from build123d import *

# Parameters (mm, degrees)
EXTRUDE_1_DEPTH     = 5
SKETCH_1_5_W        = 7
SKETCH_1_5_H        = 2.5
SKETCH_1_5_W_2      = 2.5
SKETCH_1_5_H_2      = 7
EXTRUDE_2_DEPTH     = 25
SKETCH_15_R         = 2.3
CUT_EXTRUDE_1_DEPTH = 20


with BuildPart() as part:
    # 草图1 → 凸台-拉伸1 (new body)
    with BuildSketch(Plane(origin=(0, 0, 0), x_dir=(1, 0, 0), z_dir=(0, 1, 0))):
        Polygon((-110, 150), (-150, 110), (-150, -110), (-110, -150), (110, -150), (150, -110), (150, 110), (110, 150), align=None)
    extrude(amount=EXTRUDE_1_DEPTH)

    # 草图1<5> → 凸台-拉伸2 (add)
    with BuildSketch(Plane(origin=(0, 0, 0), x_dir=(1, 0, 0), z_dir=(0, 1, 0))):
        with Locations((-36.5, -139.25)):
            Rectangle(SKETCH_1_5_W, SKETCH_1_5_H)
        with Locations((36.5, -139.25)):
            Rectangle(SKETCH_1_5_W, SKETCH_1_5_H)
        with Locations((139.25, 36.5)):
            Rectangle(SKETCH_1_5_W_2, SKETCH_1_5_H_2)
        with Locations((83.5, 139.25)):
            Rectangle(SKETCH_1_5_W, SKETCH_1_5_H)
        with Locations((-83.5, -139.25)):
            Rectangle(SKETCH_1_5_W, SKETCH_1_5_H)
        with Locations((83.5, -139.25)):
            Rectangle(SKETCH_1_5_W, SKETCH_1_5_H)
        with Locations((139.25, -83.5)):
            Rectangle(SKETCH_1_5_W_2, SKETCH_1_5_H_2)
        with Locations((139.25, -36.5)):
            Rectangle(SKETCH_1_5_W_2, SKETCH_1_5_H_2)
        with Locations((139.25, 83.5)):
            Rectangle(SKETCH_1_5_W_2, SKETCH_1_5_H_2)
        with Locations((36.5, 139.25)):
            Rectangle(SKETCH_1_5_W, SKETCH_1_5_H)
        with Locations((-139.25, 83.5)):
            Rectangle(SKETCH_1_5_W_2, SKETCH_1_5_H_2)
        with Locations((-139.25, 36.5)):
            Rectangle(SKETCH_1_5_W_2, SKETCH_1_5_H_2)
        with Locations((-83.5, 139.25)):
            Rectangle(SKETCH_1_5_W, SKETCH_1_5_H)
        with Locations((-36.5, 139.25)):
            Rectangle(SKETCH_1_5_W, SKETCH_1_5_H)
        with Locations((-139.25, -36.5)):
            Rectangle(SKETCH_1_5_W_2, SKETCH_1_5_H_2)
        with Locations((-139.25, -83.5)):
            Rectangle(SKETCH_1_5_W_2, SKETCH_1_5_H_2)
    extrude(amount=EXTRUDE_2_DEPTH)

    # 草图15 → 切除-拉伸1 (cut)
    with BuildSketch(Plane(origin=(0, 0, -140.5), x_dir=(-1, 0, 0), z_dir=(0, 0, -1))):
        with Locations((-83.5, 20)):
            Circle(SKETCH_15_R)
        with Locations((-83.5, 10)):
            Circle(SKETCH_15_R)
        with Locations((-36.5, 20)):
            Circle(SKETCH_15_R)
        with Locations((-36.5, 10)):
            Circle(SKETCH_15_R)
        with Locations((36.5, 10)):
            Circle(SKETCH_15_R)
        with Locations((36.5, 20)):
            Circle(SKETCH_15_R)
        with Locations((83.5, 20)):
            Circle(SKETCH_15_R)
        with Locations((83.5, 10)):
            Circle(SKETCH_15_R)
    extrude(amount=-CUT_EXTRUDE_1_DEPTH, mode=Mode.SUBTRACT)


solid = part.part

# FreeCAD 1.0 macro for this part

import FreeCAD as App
import Part
import Sketcher
from FreeCAD import Vector
Q = App.Units.Quantity

doc = App.newDocument("Part")
body = doc.addObject("PartDesign::Body", "Body")

# Sketch on XZ plane
sketch1 = body.newObject("Sketcher::SketchObject", "Sketch")
sketch1.AttachmentSupport = (doc.getObject("XZ_Plane"), [""])
sketch1.MapMode = "FlatFace"
sketch1.addGeometry(Part.LineSegment(Vector(-110, -150, 0), Vector(-150, -110, 0)), False)
sketch1.addGeometry(Part.LineSegment(Vector(-150, -110, 0), Vector(-150, 110, 0)), False)
sketch1.addGeometry(Part.LineSegment(Vector(-150, 110, 0), Vector(-110, 150, 0)), False)
sketch1.addGeometry(Part.LineSegment(Vector(-110, 150, 0), Vector(110, 150, 0)), False)
sketch1.addGeometry(Part.LineSegment(Vector(110, 150, 0), Vector(150, 110, 0)), False)
sketch1.addGeometry(Part.LineSegment(Vector(150, 110, 0), Vector(150, -110, 0)), False)
sketch1.addGeometry(Part.LineSegment(Vector(150, -110, 0), Vector(110, -150, 0)), False)
sketch1.addGeometry(Part.LineSegment(Vector(110, -150, 0), Vector(-110, -150, 0)), False)
sketch1.addConstraint(Sketcher.Constraint("Coincident", 0, 2, 1, 1))
sketch1.addConstraint(Sketcher.Constraint("Coincident", 1, 2, 2, 1))
sketch1.addConstraint(Sketcher.Constraint("Coincident", 2, 2, 3, 1))
sketch1.addConstraint(Sketcher.Constraint("Coincident", 3, 2, 4, 1))
sketch1.addConstraint(Sketcher.Constraint("Coincident", 4, 2, 5, 1))
sketch1.addConstraint(Sketcher.Constraint("Coincident", 5, 2, 6, 1))
sketch1.addConstraint(Sketcher.Constraint("Coincident", 6, 2, 7, 1))
sketch1.addConstraint(Sketcher.Constraint("Coincident", 7, 2, 0, 1))
sketch1.addConstraint(Sketcher.Constraint("Vertical", 1))
sketch1.addConstraint(Sketcher.Constraint("Horizontal", 3))
sketch1.addConstraint(Sketcher.Constraint("Vertical", 5))
sketch1.addConstraint(Sketcher.Constraint("Horizontal", 7))
sketch1.addConstraint(Sketcher.Constraint("Symmetric", 0, 2, 4, 2, -1, 1))
sketch1.addConstraint(Sketcher.Constraint("Symmetric", 2, 2, 6, 2, -1, 1))
sketch1.addConstraint(Sketcher.Constraint("Perpendicular", 0, 2))
sketch1.addConstraint(Sketcher.Constraint("Perpendicular", 2, 4))
sketch1.addConstraint(Sketcher.Constraint("Perpendicular", 4, 6))
sketch1.addConstraint(Sketcher.Constraint("Horizontal", 1, 2, 4, 2))
sketch1.addConstraint(Sketcher.Constraint("Vertical", 3, 2, 6, 2))
sketch1.addConstraint(Sketcher.Constraint("Equal", 7, 1))
sketch1.addConstraint(Sketcher.Constraint("DistanceX", 3, 1, 3, 2, Q("220 mm")))
sketch1.addConstraint(Sketcher.Constraint("DistanceX", 0, 2, -1, 1, Q("150 mm")))
pad1 = body.newObject("PartDesign::Pad", "Pad")
pad1.Profile = sketch1
pad1.Length = 5
pad1.Reversed = True

# Sketch on XZ plane
sketch2 = body.newObject("Sketcher::SketchObject", "Sketch001")
sketch2.AttachmentSupport = (doc.getObject("XZ_Plane"), [""])
sketch2.MapMode = "FlatFace"
sketch2.addGeometry(Part.LineSegment(Vector(-40, 138, 0), Vector(-40, 140.5, 0)), False)
sketch2.addGeometry(Part.LineSegment(Vector(-40, 140.5, 0), Vector(-33, 140.5, 0)), False)
sketch2.addGeometry(Part.LineSegment(Vector(-33, 140.5, 0), Vector(-33, 138, 0)), False)
sketch2.addGeometry(Part.LineSegment(Vector(-33, 138, 0), Vector(-40, 138, 0)), False)
sketch2.addGeometry(Part.LineSegment(Vector(33, 138, 0), Vector(33, 140.5, 0)), False)
sketch2.addGeometry(Part.LineSegment(Vector(33, 140.5, 0), Vector(40, 140.5, 0)), False)
sketch2.addGeometry(Part.LineSegment(Vector(40, 140.5, 0), Vector(40, 138, 0)), False)
sketch2.addGeometry(Part.LineSegment(Vector(40, 138, 0), Vector(33, 138, 0)), False)
sketch2.addGeometry(Part.LineSegment(Vector(138, -40, 0), Vector(138, -33, 0)), False)
sketch2.addGeometry(Part.LineSegment(Vector(138, -33, 0), Vector(140.5, -33, 0)), False)
sketch2.addGeometry(Part.LineSegment(Vector(140.5, -33, 0), Vector(140.5, -40, 0)), False)
sketch2.addGeometry(Part.LineSegment(Vector(140.5, -40, 0), Vector(138, -40, 0)), False)
sketch2.addGeometry(Part.LineSegment(Vector(80, -140.5, 0), Vector(80, -138, 0)), False)
sketch2.addGeometry(Part.LineSegment(Vector(80, -138, 0), Vector(87, -138, 0)), False)
sketch2.addGeometry(Part.LineSegment(Vector(87, -138, 0), Vector(87, -140.5, 0)), False)
sketch2.addGeometry(Part.LineSegment(Vector(87, -140.5, 0), Vector(80, -140.5, 0)), False)
sketch2.addGeometry(Part.LineSegment(Vector(-87, 138, 0), Vector(-87, 140.5, 0)), False)
sketch2.addGeometry(Part.LineSegment(Vector(-87, 140.5, 0), Vector(-80, 140.5, 0)), False)
sketch2.addGeometry(Part.LineSegment(Vector(-80, 140.5, 0), Vector(-80, 138, 0)), False)
sketch2.addGeometry(Part.LineSegment(Vector(-80, 138, 0), Vector(-87, 138, 0)), False)
sketch2.addGeometry(Part.LineSegment(Vector(80, 138, 0), Vector(80, 140.5, 0)), False)
sketch2.addGeometry(Part.LineSegment(Vector(80, 140.5, 0), Vector(87, 140.5, 0)), False)
sketch2.addGeometry(Part.LineSegment(Vector(87, 140.5, 0), Vector(87, 138, 0)), False)
sketch2.addGeometry(Part.LineSegment(Vector(87, 138, 0), Vector(80, 138, 0)), False)
sketch2.addGeometry(Part.LineSegment(Vector(138, 80, 0), Vector(138, 87, 0)), False)
sketch2.addGeometry(Part.LineSegment(Vector(138, 87, 0), Vector(140.5, 87, 0)), False)
sketch2.addGeometry(Part.LineSegment(Vector(140.5, 87, 0), Vector(140.5, 80, 0)), False)
sketch2.addGeometry(Part.LineSegment(Vector(140.5, 80, 0), Vector(138, 80, 0)), False)
sketch2.addGeometry(Part.LineSegment(Vector(138, 33, 0), Vector(138, 40, 0)), False)
sketch2.addGeometry(Part.LineSegment(Vector(138, 40, 0), Vector(140.5, 40, 0)), False)
sketch2.addGeometry(Part.LineSegment(Vector(140.5, 40, 0), Vector(140.5, 33, 0)), False)
sketch2.addGeometry(Part.LineSegment(Vector(140.5, 33, 0), Vector(138, 33, 0)), False)
sketch2.addGeometry(Part.LineSegment(Vector(138, -87, 0), Vector(138, -80, 0)), False)
sketch2.addGeometry(Part.LineSegment(Vector(138, -80, 0), Vector(140.5, -80, 0)), False)
sketch2.addGeometry(Part.LineSegment(Vector(140.5, -80, 0), Vector(140.5, -87, 0)), False)
sketch2.addGeometry(Part.LineSegment(Vector(140.5, -87, 0), Vector(138, -87, 0)), False)
sketch2.addGeometry(Part.LineSegment(Vector(33, -140.5, 0), Vector(33, -138, 0)), False)
sketch2.addGeometry(Part.LineSegment(Vector(33, -138, 0), Vector(40, -138, 0)), False)
sketch2.addGeometry(Part.LineSegment(Vector(40, -138, 0), Vector(40, -140.5, 0)), False)
sketch2.addGeometry(Part.LineSegment(Vector(40, -140.5, 0), Vector(33, -140.5, 0)), False)
sketch2.addGeometry(Part.LineSegment(Vector(-140.5, -87, 0), Vector(-140.5, -80, 0)), False)
sketch2.addGeometry(Part.LineSegment(Vector(-140.5, -80, 0), Vector(-138, -80, 0)), False)
sketch2.addGeometry(Part.LineSegment(Vector(-138, -80, 0), Vector(-138, -87, 0)), False)
sketch2.addGeometry(Part.LineSegment(Vector(-138, -87, 0), Vector(-140.5, -87, 0)), False)
sketch2.addGeometry(Part.LineSegment(Vector(-140.5, -40, 0), Vector(-140.5, -33, 0)), False)
sketch2.addGeometry(Part.LineSegment(Vector(-140.5, -33, 0), Vector(-138, -33, 0)), False)
sketch2.addGeometry(Part.LineSegment(Vector(-138, -33, 0), Vector(-138, -40, 0)), False)
sketch2.addGeometry(Part.LineSegment(Vector(-138, -40, 0), Vector(-140.5, -40, 0)), False)
sketch2.addGeometry(Part.LineSegment(Vector(-87, -140.5, 0), Vector(-87, -138, 0)), False)
sketch2.addGeometry(Part.LineSegment(Vector(-87, -138, 0), Vector(-80, -138, 0)), False)
sketch2.addGeometry(Part.LineSegment(Vector(-80, -138, 0), Vector(-80, -140.5, 0)), False)
sketch2.addGeometry(Part.LineSegment(Vector(-80, -140.5, 0), Vector(-87, -140.5, 0)), False)
sketch2.addGeometry(Part.LineSegment(Vector(-40, -140.5, 0), Vector(-40, -138, 0)), False)
sketch2.addGeometry(Part.LineSegment(Vector(-40, -138, 0), Vector(-33, -138, 0)), False)
sketch2.addGeometry(Part.LineSegment(Vector(-33, -138, 0), Vector(-33, -140.5, 0)), False)
sketch2.addGeometry(Part.LineSegment(Vector(-33, -140.5, 0), Vector(-40, -140.5, 0)), False)
sketch2.addGeometry(Part.LineSegment(Vector(-140.5, 33, 0), Vector(-140.5, 40, 0)), False)
sketch2.addGeometry(Part.LineSegment(Vector(-140.5, 40, 0), Vector(-138, 40, 0)), False)
sketch2.addGeometry(Part.LineSegment(Vector(-138, 40, 0), Vector(-138, 33, 0)), False)
sketch2.addGeometry(Part.LineSegment(Vector(-138, 33, 0), Vector(-140.5, 33, 0)), False)
sketch2.addGeometry(Part.LineSegment(Vector(-140.5, 80, 0), Vector(-140.5, 87, 0)), False)
sketch2.addGeometry(Part.LineSegment(Vector(-140.5, 87, 0), Vector(-138, 87, 0)), False)
sketch2.addGeometry(Part.LineSegment(Vector(-138, 87, 0), Vector(-138, 80, 0)), False)
sketch2.addGeometry(Part.LineSegment(Vector(-138, 80, 0), Vector(-140.5, 80, 0)), False)
sketch2.addConstraint(Sketcher.Constraint("Coincident", 0, 2, 1, 1))
sketch2.addConstraint(Sketcher.Constraint("Coincident", 1, 2, 2, 1))
sketch2.addConstraint(Sketcher.Constraint("Coincident", 2, 2, 3, 1))
sketch2.addConstraint(Sketcher.Constraint("Coincident", 3, 2, 0, 1))
sketch2.addConstraint(Sketcher.Constraint("Coincident", 4, 2, 5, 1))
sketch2.addConstraint(Sketcher.Constraint("Coincident", 5, 2, 6, 1))
sketch2.addConstraint(Sketcher.Constraint("Coincident", 6, 2, 7, 1))
sketch2.addConstraint(Sketcher.Constraint("Coincident", 7, 2, 4, 1))
sketch2.addConstraint(Sketcher.Constraint("Coincident", 8, 2, 9, 1))
sketch2.addConstraint(Sketcher.Constraint("Coincident", 9, 2, 10, 1))
sketch2.addConstraint(Sketcher.Constraint("Coincident", 10, 2, 11, 1))
sketch2.addConstraint(Sketcher.Constraint("Coincident", 11, 2, 8, 1))
sketch2.addConstraint(Sketcher.Constraint("Coincident", 12, 2, 13, 1))
sketch2.addConstraint(Sketcher.Constraint("Coincident", 13, 2, 14, 1))
sketch2.addConstraint(Sketcher.Constraint("Coincident", 14, 2, 15, 1))
sketch2.addConstraint(Sketcher.Constraint("Coincident", 15, 2, 12, 1))
sketch2.addConstraint(Sketcher.Constraint("Coincident", 16, 2, 17, 1))
sketch2.addConstraint(Sketcher.Constraint("Coincident", 17, 2, 18, 1))
sketch2.addConstraint(Sketcher.Constraint("Coincident", 18, 2, 19, 1))
sketch2.addConstraint(Sketcher.Constraint("Coincident", 19, 2, 16, 1))
sketch2.addConstraint(Sketcher.Constraint("Coincident", 20, 2, 21, 1))
sketch2.addConstraint(Sketcher.Constraint("Coincident", 21, 2, 22, 1))
sketch2.addConstraint(Sketcher.Constraint("Coincident", 22, 2, 23, 1))
sketch2.addConstraint(Sketcher.Constraint("Coincident", 23, 2, 20, 1))
sketch2.addConstraint(Sketcher.Constraint("Coincident", 24, 2, 25, 1))
sketch2.addConstraint(Sketcher.Constraint("Coincident", 25, 2, 26, 1))
sketch2.addConstraint(Sketcher.Constraint("Coincident", 26, 2, 27, 1))
sketch2.addConstraint(Sketcher.Constraint("Coincident", 27, 2, 24, 1))
sketch2.addConstraint(Sketcher.Constraint("Coincident", 28, 2, 29, 1))
sketch2.addConstraint(Sketcher.Constraint("Coincident", 29, 2, 30, 1))
sketch2.addConstraint(Sketcher.Constraint("Coincident", 30, 2, 31, 1))
sketch2.addConstraint(Sketcher.Constraint("Coincident", 31, 2, 28, 1))
sketch2.addConstraint(Sketcher.Constraint("Coincident", 32, 2, 33, 1))
sketch2.addConstraint(Sketcher.Constraint("Coincident", 33, 2, 34, 1))
sketch2.addConstraint(Sketcher.Constraint("Coincident", 34, 2, 35, 1))
sketch2.addConstraint(Sketcher.Constraint("Coincident", 35, 2, 32, 1))
sketch2.addConstraint(Sketcher.Constraint("Coincident", 36, 2, 37, 1))
sketch2.addConstraint(Sketcher.Constraint("Coincident", 37, 2, 38, 1))
sketch2.addConstraint(Sketcher.Constraint("Coincident", 38, 2, 39, 1))
sketch2.addConstraint(Sketcher.Constraint("Coincident", 39, 2, 36, 1))
sketch2.addConstraint(Sketcher.Constraint("Coincident", 40, 2, 41, 1))
sketch2.addConstraint(Sketcher.Constraint("Coincident", 41, 2, 42, 1))
sketch2.addConstraint(Sketcher.Constraint("Coincident", 42, 2, 43, 1))
sketch2.addConstraint(Sketcher.Constraint("Coincident", 43, 2, 40, 1))
sketch2.addConstraint(Sketcher.Constraint("Coincident", 44, 2, 45, 1))
sketch2.addConstraint(Sketcher.Constraint("Coincident", 45, 2, 46, 1))
sketch2.addConstraint(Sketcher.Constraint("Coincident", 46, 2, 47, 1))
sketch2.addConstraint(Sketcher.Constraint("Coincident", 47, 2, 44, 1))
sketch2.addConstraint(Sketcher.Constraint("Coincident", 48, 2, 49, 1))
sketch2.addConstraint(Sketcher.Constraint("Coincident", 49, 2, 50, 1))
sketch2.addConstraint(Sketcher.Constraint("Coincident", 50, 2, 51, 1))
sketch2.addConstraint(Sketcher.Constraint("Coincident", 51, 2, 48, 1))
sketch2.addConstraint(Sketcher.Constraint("Coincident", 52, 2, 53, 1))
sketch2.addConstraint(Sketcher.Constraint("Coincident", 53, 2, 54, 1))
sketch2.addConstraint(Sketcher.Constraint("Coincident", 54, 2, 55, 1))
sketch2.addConstraint(Sketcher.Constraint("Coincident", 55, 2, 52, 1))
sketch2.addConstraint(Sketcher.Constraint("Coincident", 56, 2, 57, 1))
sketch2.addConstraint(Sketcher.Constraint("Coincident", 57, 2, 58, 1))
sketch2.addConstraint(Sketcher.Constraint("Coincident", 58, 2, 59, 1))
sketch2.addConstraint(Sketcher.Constraint("Coincident", 59, 2, 56, 1))
sketch2.addConstraint(Sketcher.Constraint("Coincident", 60, 2, 61, 1))
sketch2.addConstraint(Sketcher.Constraint("Coincident", 61, 2, 62, 1))
sketch2.addConstraint(Sketcher.Constraint("Coincident", 62, 2, 63, 1))
sketch2.addConstraint(Sketcher.Constraint("Coincident", 63, 2, 60, 1))
sketch2.addConstraint(Sketcher.Constraint("Vertical", 0))
sketch2.addConstraint(Sketcher.Constraint("Horizontal", 1))
sketch2.addConstraint(Sketcher.Constraint("Vertical", 2))
sketch2.addConstraint(Sketcher.Constraint("Horizontal", 3))
sketch2.addConstraint(Sketcher.Constraint("Vertical", 4))
sketch2.addConstraint(Sketcher.Constraint("Horizontal", 5))
sketch2.addConstraint(Sketcher.Constraint("Vertical", 6))
sketch2.addConstraint(Sketcher.Constraint("Horizontal", 7))
sketch2.addConstraint(Sketcher.Constraint("Vertical", 8))
sketch2.addConstraint(Sketcher.Constraint("Horizontal", 9))
sketch2.addConstraint(Sketcher.Constraint("Vertical", 10))
sketch2.addConstraint(Sketcher.Constraint("Horizontal", 11))
sketch2.addConstraint(Sketcher.Constraint("Vertical", 12))
sketch2.addConstraint(Sketcher.Constraint("Horizontal", 13))
sketch2.addConstraint(Sketcher.Constraint("Vertical", 14))
sketch2.addConstraint(Sketcher.Constraint("Horizontal", 15))
sketch2.addConstraint(Sketcher.Constraint("Vertical", 16))
sketch2.addConstraint(Sketcher.Constraint("Horizontal", 17))
sketch2.addConstraint(Sketcher.Constraint("Vertical", 18))
sketch2.addConstraint(Sketcher.Constraint("Horizontal", 19))
sketch2.addConstraint(Sketcher.Constraint("Vertical", 20))
sketch2.addConstraint(Sketcher.Constraint("Horizontal", 21))
sketch2.addConstraint(Sketcher.Constraint("Vertical", 22))
sketch2.addConstraint(Sketcher.Constraint("Horizontal", 23))
sketch2.addConstraint(Sketcher.Constraint("Vertical", 24))
sketch2.addConstraint(Sketcher.Constraint("Horizontal", 25))
sketch2.addConstraint(Sketcher.Constraint("Vertical", 26))
sketch2.addConstraint(Sketcher.Constraint("Horizontal", 27))
sketch2.addConstraint(Sketcher.Constraint("Vertical", 28))
sketch2.addConstraint(Sketcher.Constraint("Horizontal", 29))
sketch2.addConstraint(Sketcher.Constraint("Vertical", 30))
sketch2.addConstraint(Sketcher.Constraint("Horizontal", 31))
sketch2.addConstraint(Sketcher.Constraint("Vertical", 32))
sketch2.addConstraint(Sketcher.Constraint("Horizontal", 33))
sketch2.addConstraint(Sketcher.Constraint("Vertical", 34))
sketch2.addConstraint(Sketcher.Constraint("Horizontal", 35))
sketch2.addConstraint(Sketcher.Constraint("Vertical", 36))
sketch2.addConstraint(Sketcher.Constraint("Horizontal", 37))
sketch2.addConstraint(Sketcher.Constraint("Vertical", 38))
sketch2.addConstraint(Sketcher.Constraint("Horizontal", 39))
sketch2.addConstraint(Sketcher.Constraint("Vertical", 40))
sketch2.addConstraint(Sketcher.Constraint("Horizontal", 41))
sketch2.addConstraint(Sketcher.Constraint("Vertical", 42))
sketch2.addConstraint(Sketcher.Constraint("Horizontal", 43))
sketch2.addConstraint(Sketcher.Constraint("Vertical", 44))
sketch2.addConstraint(Sketcher.Constraint("Horizontal", 45))
sketch2.addConstraint(Sketcher.Constraint("Vertical", 46))
sketch2.addConstraint(Sketcher.Constraint("Horizontal", 47))
sketch2.addConstraint(Sketcher.Constraint("Vertical", 48))
sketch2.addConstraint(Sketcher.Constraint("Horizontal", 49))
sketch2.addConstraint(Sketcher.Constraint("Vertical", 50))
sketch2.addConstraint(Sketcher.Constraint("Horizontal", 51))
sketch2.addConstraint(Sketcher.Constraint("Vertical", 52))
sketch2.addConstraint(Sketcher.Constraint("Horizontal", 53))
sketch2.addConstraint(Sketcher.Constraint("Vertical", 54))
sketch2.addConstraint(Sketcher.Constraint("Horizontal", 55))
sketch2.addConstraint(Sketcher.Constraint("Vertical", 56))
sketch2.addConstraint(Sketcher.Constraint("Horizontal", 57))
sketch2.addConstraint(Sketcher.Constraint("Vertical", 58))
sketch2.addConstraint(Sketcher.Constraint("Horizontal", 59))
sketch2.addConstraint(Sketcher.Constraint("Vertical", 60))
sketch2.addConstraint(Sketcher.Constraint("Horizontal", 61))
sketch2.addConstraint(Sketcher.Constraint("Vertical", 62))
sketch2.addConstraint(Sketcher.Constraint("Horizontal", 63))
sketch2.addConstraint(Sketcher.Constraint("Symmetric", 14, 2, 16, 2, -1, 1))
sketch2.addConstraint(Sketcher.Constraint("Symmetric", 12, 2, 18, 2, -1, 1))
sketch2.addConstraint(Sketcher.Constraint("Symmetric", 2, 2, 36, 2, -1, 1))
sketch2.addConstraint(Sketcher.Constraint("Symmetric", 0, 2, 38, 2, -1, 1))
sketch2.addConstraint(Sketcher.Constraint("Symmetric", 26, 2, 40, 2, -1, 1))
sketch2.addConstraint(Sketcher.Constraint("Symmetric", 24, 2, 42, 2, -1, 1))
sketch2.addConstraint(Sketcher.Constraint("Symmetric", 30, 2, 44, 2, -1, 1))
sketch2.addConstraint(Sketcher.Constraint("Symmetric", 28, 2, 46, 2, -1, 1))
sketch2.addConstraint(Sketcher.Constraint("Symmetric", 22, 2, 48, 2, -1, 1))
sketch2.addConstraint(Sketcher.Constraint("Symmetric", 20, 2, 50, 2, -1, 1))
sketch2.addConstraint(Sketcher.Constraint("Symmetric", 6, 2, 52, 2, -1, 1))
sketch2.addConstraint(Sketcher.Constraint("Symmetric", 4, 2, 54, 2, -1, 1))
sketch2.addConstraint(Sketcher.Constraint("Symmetric", 10, 2, 56, 2, -1, 1))
sketch2.addConstraint(Sketcher.Constraint("Symmetric", 8, 2, 58, 2, -1, 1))
sketch2.addConstraint(Sketcher.Constraint("Symmetric", 34, 2, 60, 2, -1, 1))
sketch2.addConstraint(Sketcher.Constraint("Symmetric", 32, 2, 62, 2, -1, 1))
sketch2.addConstraint(Sketcher.Constraint("Symmetric", 1, 2, 4, 2, -2))
sketch2.addConstraint(Sketcher.Constraint("Symmetric", 3, 2, 6, 2, -2))
sketch2.addConstraint(Sketcher.Constraint("Symmetric", 17, 2, 20, 2, -2))
sketch2.addConstraint(Sketcher.Constraint("Symmetric", 19, 2, 22, 2, -2))
sketch2.addConstraint(Sketcher.Constraint("Symmetric", 33, 2, 40, 2, -2))
sketch2.addConstraint(Sketcher.Constraint("Symmetric", 35, 2, 42, 2, -2))
sketch2.addConstraint(Sketcher.Constraint("Symmetric", 9, 2, 44, 2, -2))
sketch2.addConstraint(Sketcher.Constraint("Symmetric", 11, 2, 46, 2, -2))
sketch2.addConstraint(Sketcher.Constraint("Horizontal", 5, 2, 16, 2))
sketch2.addConstraint(Sketcher.Constraint("Horizontal", 7, 2, 18, 2))
sketch2.addConstraint(Sketcher.Constraint("Vertical", 11, 2, 24, 2))
sketch2.addConstraint(Sketcher.Constraint("Vertical", 10, 2, 25, 2))
sketch2.addConstraint(Sketcher.Constraint("Equal", 7, 13))
sketch2.addConstraint(Sketcher.Constraint("Equal", 63, 0))
sketch2.addConstraint(Sketcher.Constraint("Equal", 55, 8))
sketch2.addConstraint(Sketcher.Constraint("Equal", 10, 24))
sketch2.addConstraint(Sketcher.Constraint("DistanceX", 1, 1, 1, 2, Q("7 mm")))
sketch2.addConstraint(Sketcher.Constraint("DistanceX", 9, 1, 9, 2, Q("2.5 mm")))
sketch2.addConstraint(Sketcher.Constraint("DistanceX", 0, 2, -1, 1, Q("40 mm")))
sketch2.addConstraint(Sketcher.Constraint("DistanceY", -1, 1, 2, 2, Q("138 mm")))
sketch2.addConstraint(Sketcher.Constraint("DistanceX", -1, 1, 8, 2, Q("138 mm")))
sketch2.addConstraint(Sketcher.Constraint("DistanceY", 8, 2, -1, 1, Q("33 mm")))
sketch2.addConstraint(Sketcher.Constraint("DistanceX", -1, 1, 12, 2, Q("80 mm")))
sketch2.addConstraint(Sketcher.Constraint("DistanceY", -1, 1, 24, 2, Q("87 mm")))
pad2 = body.newObject("PartDesign::Pad", "Pad001")
pad2.Profile = sketch2
pad2.Length = 25
pad2.Reversed = True

# Sketch on XY plane
sketch3 = body.newObject("Sketcher::SketchObject", "Sketch002")
sketch3.AttachmentSupport = (doc.getObject("XY_Plane"), [""])
sketch3.MapMode = "FlatFace"
sketch3.AttachmentOffset = App.Placement(Vector(0, 0, -140.5), App.Rotation())
sketch3.addGeometry(Part.Circle(Vector(83.5, 20, 0), Vector(0, 0, 1), 2.3), False)
sketch3.addGeometry(Part.Circle(Vector(83.5, 10, 0), Vector(0, 0, 1), 2.3), False)
sketch3.addGeometry(Part.Circle(Vector(36.5, 20, 0), Vector(0, 0, 1), 2.3), False)
sketch3.addGeometry(Part.Circle(Vector(36.5, 10, 0), Vector(0, 0, 1), 2.3), False)
sketch3.addGeometry(Part.Circle(Vector(-36.5, 10, 0), Vector(0, 0, 1), 2.3), False)
sketch3.addGeometry(Part.Circle(Vector(-36.5, 20, 0), Vector(0, 0, 1), 2.3), False)
sketch3.addGeometry(Part.Circle(Vector(-83.5, 20, 0), Vector(0, 0, 1), 2.3), False)
sketch3.addGeometry(Part.Circle(Vector(-83.5, 10, 0), Vector(0, 0, 1), 2.3), False)
sketch3.addConstraint(Sketcher.Constraint("Equal", 0, 1))
sketch3.addConstraint(Sketcher.Constraint("Equal", 1, 2))
sketch3.addConstraint(Sketcher.Constraint("Equal", 2, 3))
sketch3.addConstraint(Sketcher.Constraint("Equal", 3, 4))
sketch3.addConstraint(Sketcher.Constraint("Equal", 4, 5))
sketch3.addConstraint(Sketcher.Constraint("Equal", 5, 6))
sketch3.addConstraint(Sketcher.Constraint("Equal", 6, 7))
sketch3.addConstraint(Sketcher.Constraint("Symmetric", 3, 3, 4, 3, -2))
sketch3.addConstraint(Sketcher.Constraint("Symmetric", 2, 3, 5, 3, -2))
sketch3.addConstraint(Sketcher.Constraint("Symmetric", 0, 3, 6, 3, -2))
sketch3.addConstraint(Sketcher.Constraint("Symmetric", 1, 3, 7, 3, -2))
sketch3.addConstraint(Sketcher.Constraint("Horizontal", 0, 3, 2, 3))
sketch3.addConstraint(Sketcher.Constraint("Horizontal", 1, 3, 3, 3))
sketch3.addConstraint(Sketcher.Constraint("Vertical", 0, 3, 1, 3))
sketch3.addConstraint(Sketcher.Constraint("Vertical", 2, 3, 3, 3))
sketch3.addConstraint(Sketcher.Constraint("Diameter", 0, Q("4.6 mm")))
sketch3.addConstraint(Sketcher.Constraint("DistanceY", -1, 1, 0, 3, Q("20 mm")))
sketch3.addConstraint(Sketcher.Constraint("DistanceY", -1, 1, 1, 3, Q("10 mm")))
sketch3.addConstraint(Sketcher.Constraint("DistanceX", 2, 3, 0, 3, Q("47 mm")))
sketch3.addConstraint(Sketcher.Constraint("DistanceX", 4, 3, 3, 3, Q("73 mm")))
pocket1 = body.newObject("PartDesign::Pocket", "Pocket")
pocket1.Profile = sketch3
pocket1.Length = 20
pocket1.Reversed = True

doc.recompute()
